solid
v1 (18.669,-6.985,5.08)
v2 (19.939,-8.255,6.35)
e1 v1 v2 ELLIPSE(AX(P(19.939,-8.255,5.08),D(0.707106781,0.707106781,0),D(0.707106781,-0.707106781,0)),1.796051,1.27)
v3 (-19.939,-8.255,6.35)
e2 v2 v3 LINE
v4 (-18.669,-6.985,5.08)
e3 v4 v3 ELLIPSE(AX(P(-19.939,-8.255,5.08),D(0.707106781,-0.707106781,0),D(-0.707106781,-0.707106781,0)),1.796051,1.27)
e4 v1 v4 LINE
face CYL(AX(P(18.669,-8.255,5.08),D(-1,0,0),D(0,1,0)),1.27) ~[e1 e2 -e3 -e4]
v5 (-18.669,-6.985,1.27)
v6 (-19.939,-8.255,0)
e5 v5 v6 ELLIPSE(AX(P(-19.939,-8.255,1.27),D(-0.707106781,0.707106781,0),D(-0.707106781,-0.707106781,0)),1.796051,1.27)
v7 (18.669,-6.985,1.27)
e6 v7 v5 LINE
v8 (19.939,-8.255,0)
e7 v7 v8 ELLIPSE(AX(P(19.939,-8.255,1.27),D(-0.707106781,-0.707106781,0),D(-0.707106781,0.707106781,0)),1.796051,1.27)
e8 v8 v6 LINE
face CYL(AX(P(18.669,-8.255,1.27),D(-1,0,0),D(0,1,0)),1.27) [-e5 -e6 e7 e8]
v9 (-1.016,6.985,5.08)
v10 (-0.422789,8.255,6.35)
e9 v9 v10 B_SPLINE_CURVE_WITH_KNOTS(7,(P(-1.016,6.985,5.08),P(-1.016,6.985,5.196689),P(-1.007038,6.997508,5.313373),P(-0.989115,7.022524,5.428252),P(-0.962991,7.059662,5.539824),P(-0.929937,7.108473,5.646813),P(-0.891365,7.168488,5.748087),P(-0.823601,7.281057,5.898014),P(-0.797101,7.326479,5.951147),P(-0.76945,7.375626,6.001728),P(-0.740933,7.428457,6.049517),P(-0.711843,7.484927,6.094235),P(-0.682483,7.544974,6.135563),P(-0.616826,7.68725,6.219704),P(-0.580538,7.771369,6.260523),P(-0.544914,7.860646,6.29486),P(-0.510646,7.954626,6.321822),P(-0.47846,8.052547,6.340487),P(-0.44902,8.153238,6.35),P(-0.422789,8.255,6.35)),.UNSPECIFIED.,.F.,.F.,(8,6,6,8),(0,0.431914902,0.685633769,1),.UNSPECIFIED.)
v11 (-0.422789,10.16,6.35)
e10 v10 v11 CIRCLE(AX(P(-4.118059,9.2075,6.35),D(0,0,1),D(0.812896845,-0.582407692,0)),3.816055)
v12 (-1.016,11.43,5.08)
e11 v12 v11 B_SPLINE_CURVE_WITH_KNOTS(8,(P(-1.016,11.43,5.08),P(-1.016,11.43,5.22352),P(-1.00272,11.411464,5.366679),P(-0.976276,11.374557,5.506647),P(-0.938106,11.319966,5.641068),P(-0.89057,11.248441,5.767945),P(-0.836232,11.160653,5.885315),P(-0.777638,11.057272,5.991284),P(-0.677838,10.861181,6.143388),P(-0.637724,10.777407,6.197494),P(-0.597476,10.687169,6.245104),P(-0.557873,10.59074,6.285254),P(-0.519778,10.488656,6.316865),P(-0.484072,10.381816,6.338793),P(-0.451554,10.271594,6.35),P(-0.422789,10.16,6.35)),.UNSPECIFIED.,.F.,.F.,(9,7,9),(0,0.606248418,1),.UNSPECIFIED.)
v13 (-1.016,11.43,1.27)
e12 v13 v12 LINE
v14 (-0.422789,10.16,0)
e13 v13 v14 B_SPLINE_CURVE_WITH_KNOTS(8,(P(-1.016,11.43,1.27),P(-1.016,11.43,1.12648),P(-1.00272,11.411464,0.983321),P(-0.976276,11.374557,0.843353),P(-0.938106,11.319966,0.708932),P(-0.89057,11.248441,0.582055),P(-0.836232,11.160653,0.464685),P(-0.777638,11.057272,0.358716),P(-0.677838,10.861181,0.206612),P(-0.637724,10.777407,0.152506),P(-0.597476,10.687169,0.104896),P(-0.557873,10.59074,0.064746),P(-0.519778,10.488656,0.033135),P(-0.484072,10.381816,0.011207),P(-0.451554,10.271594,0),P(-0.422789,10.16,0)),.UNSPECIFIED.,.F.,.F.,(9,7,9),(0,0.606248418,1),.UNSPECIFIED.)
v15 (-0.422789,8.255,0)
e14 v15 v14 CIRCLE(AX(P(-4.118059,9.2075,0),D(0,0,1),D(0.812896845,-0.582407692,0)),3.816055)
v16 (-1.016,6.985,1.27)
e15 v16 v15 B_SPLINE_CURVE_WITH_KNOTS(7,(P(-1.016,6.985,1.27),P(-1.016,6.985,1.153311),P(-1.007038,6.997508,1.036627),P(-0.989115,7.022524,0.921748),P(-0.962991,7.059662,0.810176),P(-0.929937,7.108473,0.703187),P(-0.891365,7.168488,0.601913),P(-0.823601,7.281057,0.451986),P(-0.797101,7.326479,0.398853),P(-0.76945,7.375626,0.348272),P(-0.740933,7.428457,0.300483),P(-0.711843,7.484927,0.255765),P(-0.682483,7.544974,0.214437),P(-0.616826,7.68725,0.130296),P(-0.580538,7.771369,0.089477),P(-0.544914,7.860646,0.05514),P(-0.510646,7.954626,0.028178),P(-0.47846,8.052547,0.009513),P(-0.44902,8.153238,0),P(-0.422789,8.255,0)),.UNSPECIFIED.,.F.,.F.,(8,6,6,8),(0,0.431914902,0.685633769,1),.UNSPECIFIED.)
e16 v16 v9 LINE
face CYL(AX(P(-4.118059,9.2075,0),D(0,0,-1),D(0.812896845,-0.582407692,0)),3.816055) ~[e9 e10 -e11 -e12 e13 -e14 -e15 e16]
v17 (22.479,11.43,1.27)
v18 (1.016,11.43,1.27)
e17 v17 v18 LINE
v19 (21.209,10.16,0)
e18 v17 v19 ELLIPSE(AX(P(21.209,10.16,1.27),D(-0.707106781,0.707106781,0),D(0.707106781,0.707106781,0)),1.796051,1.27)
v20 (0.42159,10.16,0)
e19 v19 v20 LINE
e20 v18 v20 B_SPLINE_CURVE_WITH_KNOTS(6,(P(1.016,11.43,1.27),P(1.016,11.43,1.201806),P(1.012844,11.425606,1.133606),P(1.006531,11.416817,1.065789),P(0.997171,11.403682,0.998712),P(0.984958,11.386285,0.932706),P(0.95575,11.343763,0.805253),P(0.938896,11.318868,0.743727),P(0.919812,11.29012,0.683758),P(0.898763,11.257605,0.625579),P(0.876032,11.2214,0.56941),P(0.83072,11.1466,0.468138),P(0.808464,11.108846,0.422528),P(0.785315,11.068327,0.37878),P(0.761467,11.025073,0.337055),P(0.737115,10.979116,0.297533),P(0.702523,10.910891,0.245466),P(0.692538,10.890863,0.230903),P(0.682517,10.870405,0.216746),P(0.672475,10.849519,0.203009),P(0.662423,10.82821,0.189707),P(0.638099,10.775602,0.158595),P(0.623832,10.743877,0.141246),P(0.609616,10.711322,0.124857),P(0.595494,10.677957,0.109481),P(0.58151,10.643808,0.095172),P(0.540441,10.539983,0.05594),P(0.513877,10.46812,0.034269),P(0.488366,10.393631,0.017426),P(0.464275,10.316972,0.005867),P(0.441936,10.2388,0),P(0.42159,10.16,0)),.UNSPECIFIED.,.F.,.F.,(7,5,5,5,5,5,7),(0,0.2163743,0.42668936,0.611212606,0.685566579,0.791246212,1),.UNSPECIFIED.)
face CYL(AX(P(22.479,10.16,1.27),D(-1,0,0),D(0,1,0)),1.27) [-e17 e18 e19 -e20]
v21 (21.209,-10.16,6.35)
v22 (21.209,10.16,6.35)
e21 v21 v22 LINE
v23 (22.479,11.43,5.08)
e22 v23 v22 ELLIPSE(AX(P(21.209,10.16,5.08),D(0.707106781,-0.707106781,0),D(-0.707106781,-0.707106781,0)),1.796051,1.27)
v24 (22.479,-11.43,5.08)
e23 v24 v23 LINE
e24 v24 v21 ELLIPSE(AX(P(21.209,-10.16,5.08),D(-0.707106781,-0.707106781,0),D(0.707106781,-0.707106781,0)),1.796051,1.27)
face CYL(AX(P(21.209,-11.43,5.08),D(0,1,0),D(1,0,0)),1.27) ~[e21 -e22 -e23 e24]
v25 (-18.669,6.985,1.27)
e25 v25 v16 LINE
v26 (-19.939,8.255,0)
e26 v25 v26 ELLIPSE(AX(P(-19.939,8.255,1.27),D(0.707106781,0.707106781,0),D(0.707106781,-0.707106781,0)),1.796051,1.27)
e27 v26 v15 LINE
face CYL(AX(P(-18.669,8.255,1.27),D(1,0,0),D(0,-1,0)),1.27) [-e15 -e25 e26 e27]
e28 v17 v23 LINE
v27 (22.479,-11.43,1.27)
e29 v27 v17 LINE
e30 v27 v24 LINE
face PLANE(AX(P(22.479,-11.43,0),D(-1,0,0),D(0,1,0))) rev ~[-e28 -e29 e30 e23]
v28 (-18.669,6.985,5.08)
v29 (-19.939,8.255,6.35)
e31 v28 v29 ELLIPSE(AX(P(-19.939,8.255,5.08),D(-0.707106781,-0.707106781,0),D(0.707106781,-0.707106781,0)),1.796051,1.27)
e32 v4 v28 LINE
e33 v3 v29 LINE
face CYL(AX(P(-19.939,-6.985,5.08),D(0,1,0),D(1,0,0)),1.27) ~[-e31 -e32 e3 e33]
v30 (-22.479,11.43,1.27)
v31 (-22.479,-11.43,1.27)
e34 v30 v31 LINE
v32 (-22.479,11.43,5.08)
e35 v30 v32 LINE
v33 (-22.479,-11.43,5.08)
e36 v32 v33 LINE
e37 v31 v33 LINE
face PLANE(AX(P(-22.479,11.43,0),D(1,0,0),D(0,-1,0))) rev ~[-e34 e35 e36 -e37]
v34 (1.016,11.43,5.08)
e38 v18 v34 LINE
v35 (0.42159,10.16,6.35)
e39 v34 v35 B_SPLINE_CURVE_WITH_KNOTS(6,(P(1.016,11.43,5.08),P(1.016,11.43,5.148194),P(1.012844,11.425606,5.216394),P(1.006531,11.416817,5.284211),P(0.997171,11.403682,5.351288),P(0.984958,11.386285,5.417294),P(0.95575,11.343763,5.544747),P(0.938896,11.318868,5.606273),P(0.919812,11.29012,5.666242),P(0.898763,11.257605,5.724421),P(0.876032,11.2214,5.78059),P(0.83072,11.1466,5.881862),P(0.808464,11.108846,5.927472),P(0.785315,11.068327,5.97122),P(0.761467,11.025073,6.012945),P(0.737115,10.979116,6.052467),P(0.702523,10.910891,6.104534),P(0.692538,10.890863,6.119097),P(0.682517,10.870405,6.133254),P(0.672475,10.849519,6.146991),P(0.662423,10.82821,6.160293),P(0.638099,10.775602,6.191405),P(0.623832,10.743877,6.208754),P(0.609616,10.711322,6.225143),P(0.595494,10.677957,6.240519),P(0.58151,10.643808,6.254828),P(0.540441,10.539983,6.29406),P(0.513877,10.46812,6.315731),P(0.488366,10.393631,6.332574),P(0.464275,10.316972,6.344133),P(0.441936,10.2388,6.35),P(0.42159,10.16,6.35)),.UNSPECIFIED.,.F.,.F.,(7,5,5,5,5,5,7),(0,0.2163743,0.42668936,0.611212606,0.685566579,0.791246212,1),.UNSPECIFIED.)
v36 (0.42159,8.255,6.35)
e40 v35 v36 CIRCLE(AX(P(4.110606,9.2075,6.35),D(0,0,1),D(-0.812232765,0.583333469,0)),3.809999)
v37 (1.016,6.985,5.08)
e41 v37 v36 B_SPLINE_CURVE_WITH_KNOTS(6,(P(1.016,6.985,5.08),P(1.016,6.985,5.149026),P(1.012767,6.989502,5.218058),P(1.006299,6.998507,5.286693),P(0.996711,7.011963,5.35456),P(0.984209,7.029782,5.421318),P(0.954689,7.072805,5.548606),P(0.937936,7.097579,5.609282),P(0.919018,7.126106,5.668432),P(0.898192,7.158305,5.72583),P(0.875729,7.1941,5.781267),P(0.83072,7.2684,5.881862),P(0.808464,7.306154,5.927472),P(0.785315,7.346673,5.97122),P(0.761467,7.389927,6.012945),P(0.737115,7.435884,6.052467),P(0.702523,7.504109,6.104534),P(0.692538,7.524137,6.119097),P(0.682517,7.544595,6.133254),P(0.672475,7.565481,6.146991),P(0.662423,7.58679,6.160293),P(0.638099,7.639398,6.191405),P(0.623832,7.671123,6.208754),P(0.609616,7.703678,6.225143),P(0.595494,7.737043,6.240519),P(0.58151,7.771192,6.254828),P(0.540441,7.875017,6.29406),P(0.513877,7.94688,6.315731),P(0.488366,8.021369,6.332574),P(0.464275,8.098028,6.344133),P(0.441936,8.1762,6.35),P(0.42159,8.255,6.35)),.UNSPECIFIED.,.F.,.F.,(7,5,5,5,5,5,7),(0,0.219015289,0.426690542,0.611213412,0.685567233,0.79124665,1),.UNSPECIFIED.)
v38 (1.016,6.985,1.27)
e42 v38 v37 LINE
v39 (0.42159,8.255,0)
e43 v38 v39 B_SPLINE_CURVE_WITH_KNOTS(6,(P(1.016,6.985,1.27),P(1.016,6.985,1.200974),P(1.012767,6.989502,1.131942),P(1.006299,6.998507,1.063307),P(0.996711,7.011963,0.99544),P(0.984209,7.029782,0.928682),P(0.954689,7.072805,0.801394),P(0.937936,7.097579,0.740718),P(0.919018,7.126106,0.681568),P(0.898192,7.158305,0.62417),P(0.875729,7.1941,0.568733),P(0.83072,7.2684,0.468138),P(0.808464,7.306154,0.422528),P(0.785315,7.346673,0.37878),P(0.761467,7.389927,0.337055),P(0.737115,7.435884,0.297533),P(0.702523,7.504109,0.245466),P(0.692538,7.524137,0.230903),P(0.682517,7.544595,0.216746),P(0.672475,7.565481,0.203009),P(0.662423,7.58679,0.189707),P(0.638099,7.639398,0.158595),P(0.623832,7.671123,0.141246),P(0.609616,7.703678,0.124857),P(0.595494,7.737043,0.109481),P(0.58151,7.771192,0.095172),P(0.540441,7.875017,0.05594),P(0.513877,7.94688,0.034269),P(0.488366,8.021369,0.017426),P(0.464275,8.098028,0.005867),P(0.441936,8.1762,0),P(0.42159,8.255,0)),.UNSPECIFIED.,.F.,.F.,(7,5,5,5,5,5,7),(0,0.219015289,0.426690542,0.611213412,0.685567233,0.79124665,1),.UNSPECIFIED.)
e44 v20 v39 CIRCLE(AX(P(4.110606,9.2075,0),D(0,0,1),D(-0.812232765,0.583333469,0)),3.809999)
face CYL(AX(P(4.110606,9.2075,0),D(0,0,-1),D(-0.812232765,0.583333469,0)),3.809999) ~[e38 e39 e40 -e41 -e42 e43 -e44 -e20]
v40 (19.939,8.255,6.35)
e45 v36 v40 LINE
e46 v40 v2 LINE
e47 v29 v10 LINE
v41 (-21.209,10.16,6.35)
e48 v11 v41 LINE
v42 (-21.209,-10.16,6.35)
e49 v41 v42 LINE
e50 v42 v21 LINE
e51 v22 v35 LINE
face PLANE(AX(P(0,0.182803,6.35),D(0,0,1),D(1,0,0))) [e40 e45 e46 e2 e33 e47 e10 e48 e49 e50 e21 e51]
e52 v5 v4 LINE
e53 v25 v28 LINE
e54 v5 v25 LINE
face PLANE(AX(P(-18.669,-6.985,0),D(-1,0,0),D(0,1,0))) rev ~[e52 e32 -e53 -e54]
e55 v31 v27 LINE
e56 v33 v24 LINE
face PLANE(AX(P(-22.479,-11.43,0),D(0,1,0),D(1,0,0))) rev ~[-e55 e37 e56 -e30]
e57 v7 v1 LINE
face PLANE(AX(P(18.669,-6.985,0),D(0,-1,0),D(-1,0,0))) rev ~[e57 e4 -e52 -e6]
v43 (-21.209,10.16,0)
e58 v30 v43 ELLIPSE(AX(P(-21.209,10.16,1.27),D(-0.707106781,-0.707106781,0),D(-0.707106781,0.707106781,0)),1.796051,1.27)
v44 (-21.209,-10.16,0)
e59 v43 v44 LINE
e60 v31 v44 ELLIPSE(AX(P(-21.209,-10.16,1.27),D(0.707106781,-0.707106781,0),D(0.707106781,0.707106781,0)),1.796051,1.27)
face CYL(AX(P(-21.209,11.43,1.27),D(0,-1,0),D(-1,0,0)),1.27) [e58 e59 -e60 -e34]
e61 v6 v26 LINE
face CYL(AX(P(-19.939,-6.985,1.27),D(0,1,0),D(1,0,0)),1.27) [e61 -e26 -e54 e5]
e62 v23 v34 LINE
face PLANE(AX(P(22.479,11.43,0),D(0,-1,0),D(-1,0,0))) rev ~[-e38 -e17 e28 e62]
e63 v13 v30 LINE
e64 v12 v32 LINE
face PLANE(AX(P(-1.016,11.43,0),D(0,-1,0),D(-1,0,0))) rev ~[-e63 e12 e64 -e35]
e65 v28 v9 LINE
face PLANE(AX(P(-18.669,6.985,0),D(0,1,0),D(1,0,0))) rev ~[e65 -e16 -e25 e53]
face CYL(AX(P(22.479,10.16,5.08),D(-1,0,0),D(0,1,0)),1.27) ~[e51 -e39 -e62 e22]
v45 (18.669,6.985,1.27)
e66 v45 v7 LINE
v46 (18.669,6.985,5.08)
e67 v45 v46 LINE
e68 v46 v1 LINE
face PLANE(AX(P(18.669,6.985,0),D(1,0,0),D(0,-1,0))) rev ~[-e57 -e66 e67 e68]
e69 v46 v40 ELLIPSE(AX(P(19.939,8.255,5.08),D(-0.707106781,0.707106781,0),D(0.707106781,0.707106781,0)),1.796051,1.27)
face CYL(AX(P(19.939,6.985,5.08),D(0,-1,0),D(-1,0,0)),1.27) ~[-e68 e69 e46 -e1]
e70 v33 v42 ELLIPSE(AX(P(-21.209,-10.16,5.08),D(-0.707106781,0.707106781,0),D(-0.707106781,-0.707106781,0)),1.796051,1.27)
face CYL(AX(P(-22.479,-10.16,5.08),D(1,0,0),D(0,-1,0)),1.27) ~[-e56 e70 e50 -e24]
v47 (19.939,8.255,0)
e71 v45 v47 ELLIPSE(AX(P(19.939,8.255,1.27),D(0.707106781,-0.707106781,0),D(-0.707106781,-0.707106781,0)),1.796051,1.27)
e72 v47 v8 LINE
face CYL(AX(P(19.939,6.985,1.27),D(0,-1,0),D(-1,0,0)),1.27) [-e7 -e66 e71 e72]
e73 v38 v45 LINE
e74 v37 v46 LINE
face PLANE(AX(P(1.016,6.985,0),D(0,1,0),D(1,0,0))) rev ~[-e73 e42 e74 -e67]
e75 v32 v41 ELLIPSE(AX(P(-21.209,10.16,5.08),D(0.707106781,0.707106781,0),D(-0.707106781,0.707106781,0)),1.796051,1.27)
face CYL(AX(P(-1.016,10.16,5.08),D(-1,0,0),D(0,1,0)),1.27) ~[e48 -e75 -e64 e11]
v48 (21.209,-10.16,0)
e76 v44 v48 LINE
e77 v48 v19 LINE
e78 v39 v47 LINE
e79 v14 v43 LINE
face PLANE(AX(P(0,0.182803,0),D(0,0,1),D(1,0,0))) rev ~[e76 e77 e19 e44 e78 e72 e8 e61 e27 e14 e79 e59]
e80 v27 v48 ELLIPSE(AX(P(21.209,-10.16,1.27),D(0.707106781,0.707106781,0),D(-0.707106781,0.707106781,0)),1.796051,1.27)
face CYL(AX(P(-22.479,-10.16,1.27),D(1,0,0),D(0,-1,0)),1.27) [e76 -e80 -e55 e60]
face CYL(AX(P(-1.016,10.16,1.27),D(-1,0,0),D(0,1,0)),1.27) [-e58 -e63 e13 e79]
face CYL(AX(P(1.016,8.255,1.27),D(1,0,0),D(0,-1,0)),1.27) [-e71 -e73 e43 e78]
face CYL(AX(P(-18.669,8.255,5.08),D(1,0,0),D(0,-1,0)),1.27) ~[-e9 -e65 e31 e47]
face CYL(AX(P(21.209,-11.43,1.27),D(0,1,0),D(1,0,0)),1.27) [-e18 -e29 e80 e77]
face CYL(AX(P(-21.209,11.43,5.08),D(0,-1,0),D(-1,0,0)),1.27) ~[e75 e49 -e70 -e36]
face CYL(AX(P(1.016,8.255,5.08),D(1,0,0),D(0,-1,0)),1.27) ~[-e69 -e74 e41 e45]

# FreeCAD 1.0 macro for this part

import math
import FreeCAD as App
import Part
import Sketcher
from FreeCAD import Vector
Q = App.Units.Quantity


def edges_at(feature, points):
    """Names of the edges that pass closest to the given points."""
    edges = feature.Shape.Edges
    near = lambda p: min(range(len(edges)), key=lambda i: edges[i].distToShape(Part.Vertex(*p))[0])
    return sorted({f"Edge{near(p) + 1}" for p in points})

doc = App.newDocument("Part")
body = doc.addObject("PartDesign::Body", "Body")

sketch1 = body.newObject("Sketcher::SketchObject", "Sketch")
sketch1.AttachmentSupport = (doc.getObject("XY_Plane"), [""])
sketch1.MapMode = "FlatFace"
sketch1.addGeometry(Part.LineSegment(Vector(-22.5, -11.4, 0), Vector(22.5, -11.4, 0)), False)
sketch1.addGeometry(Part.LineSegment(Vector(22.5, -11.4, 0), Vector(22.5, 11.4, 0)), False)
sketch1.addGeometry(Part.LineSegment(Vector(22.5, 11.4, 0), Vector(1, 11.4, 0)), False)
sketch1.addGeometry(Part.ArcOfCircle(Part.Circle(Vector(4.1, 9.2, 0), Vector(0, 0, 1), 3.8), math.radians(144), math.radians(216)), False)
sketch1.addGeometry(Part.LineSegment(Vector(1, 7, 0), Vector(18.7, 7, 0)), False)
sketch1.addGeometry(Part.LineSegment(Vector(18.7, 7, 0), Vector(18.7, -7, 0)), False)
sketch1.addGeometry(Part.LineSegment(Vector(18.7, -7, 0), Vector(-18.7, -7, 0)), False)
sketch1.addGeometry(Part.LineSegment(Vector(-18.7, -7, 0), Vector(-18.7, 7, 0)), False)
sketch1.addGeometry(Part.LineSegment(Vector(-18.7, 7, 0), Vector(-1, 7, 0)), False)
sketch1.addGeometry(Part.ArcOfCircle(Part.Circle(Vector(-4.1, 9.2, 0), Vector(0, 0, 1), 3.8), math.radians(-36), math.radians(36)), False)
sketch1.addGeometry(Part.LineSegment(Vector(-1, 11.4, 0), Vector(-22.5, 11.4, 0)), False)
sketch1.addGeometry(Part.LineSegment(Vector(-22.5, 11.4, 0), Vector(-22.5, -11.4, 0)), False)
sketch1.addConstraint(Sketcher.Constraint("Coincident", 0, 2, 1, 1))
sketch1.addConstraint(Sketcher.Constraint("Coincident", 1, 2, 2, 1))
sketch1.addConstraint(Sketcher.Constraint("Coincident", 2, 2, 3, 1))
sketch1.addConstraint(Sketcher.Constraint("Coincident", 3, 2, 4, 1))
sketch1.addConstraint(Sketcher.Constraint("Coincident", 4, 2, 5, 1))
sketch1.addConstraint(Sketcher.Constraint("Coincident", 5, 2, 6, 1))
sketch1.addConstraint(Sketcher.Constraint("Coincident", 6, 2, 7, 1))
sketch1.addConstraint(Sketcher.Constraint("Coincident", 7, 2, 8, 1))
sketch1.addConstraint(Sketcher.Constraint("Coincident", 8, 2, 9, 1))
sketch1.addConstraint(Sketcher.Constraint("Coincident", 9, 2, 10, 1))
sketch1.addConstraint(Sketcher.Constraint("Coincident", 10, 2, 11, 1))
sketch1.addConstraint(Sketcher.Constraint("Coincident", 11, 2, 0, 1))
sketch1.addConstraint(Sketcher.Constraint("Horizontal", 0))
sketch1.addConstraint(Sketcher.Constraint("Vertical", 1))
sketch1.addConstraint(Sketcher.Constraint("Horizontal", 2))
sketch1.addConstraint(Sketcher.Constraint("Horizontal", 4))
sketch1.addConstraint(Sketcher.Constraint("Vertical", 5))
sketch1.addConstraint(Sketcher.Constraint("Horizontal", 6))
sketch1.addConstraint(Sketcher.Constraint("Vertical", 7))
sketch1.addConstraint(Sketcher.Constraint("Horizontal", 8))
sketch1.addConstraint(Sketcher.Constraint("Horizontal", 10))
sketch1.addConstraint(Sketcher.Constraint("Vertical", 11))
sketch1.addConstraint(Sketcher.Constraint("Symmetric", 4, 2, 6, 2, -1, 1))
sketch1.addConstraint(Sketcher.Constraint("Symmetric", 0, 2, 10, 2, -1, 1))
sketch1.addConstraint(Sketcher.Constraint("Symmetric", 3, 2, 8, 2, -2))
sketch1.addConstraint(Sketcher.Constraint("Symmetric", 2, 2, 9, 2, -2))
sketch1.addConstraint(Sketcher.Constraint("Vertical", 2, 2, 3, 2))
sketch1.addConstraint(Sketcher.Constraint("Radius", 3, Q("0.15 in")))
sketch1.addConstraint(Sketcher.Constraint("DistanceY", 1, 1, 1, 2, Q("0.9 in")))
sketch1.addConstraint(Sketcher.Constraint("DistanceX", 0, 1, 0, 2, Q("1.77 in")))
sketch1.addConstraint(Sketcher.Constraint("DistanceX", 6, 2, 6, 1, Q("1.47 in")))
sketch1.addConstraint(Sketcher.Constraint("DistanceY", 5, 2, 5, 1, Q("0.55 in")))
sketch1.addConstraint(Sketcher.Constraint("DistanceX", 2, 2, 2, 1, Q("0.845 in")))
sketch1.addConstraint(Sketcher.Constraint("Radius", 9, 3.816055))
pad1 = body.newObject("PartDesign::Pad", "Pad")
pad1.Profile = sketch1
pad1.Length = Q("0.25 in")
doc.recompute()

fillet = body.newObject("PartDesign::Fillet", "Fillet")
fillet.Base = (pad1, edges_at(pad1, [
    (-9.842, 6.985, 6.35),
    (9.842, 6.985, 6.35),
    (18.669, 0, 6.35),
    (0, -6.985, 6.35),
    (-18.669, 0, 6.35),
    (0, -6.985, 0),
    (18.669, 0, 0),
    (9.842, 6.985, 0),
    (-9.842, 6.985, 0),
    (-18.669, 0, 0),
    (11.748, 11.43, 6.35),
    (-11.748, 11.43, 6.35),
    (-22.479, 0, 6.35),
    (0, -11.43, 6.35),
    (22.479, 0, 6.35),
    (22.479, 0, 0),
    (0, -11.43, 0),
    (11.748, 11.43, 0),
    (-11.748, 11.43, 0),
    (-22.479, 0, 0),
]))
fillet.Radius = Q("0.05 in")

doc.recompute()
